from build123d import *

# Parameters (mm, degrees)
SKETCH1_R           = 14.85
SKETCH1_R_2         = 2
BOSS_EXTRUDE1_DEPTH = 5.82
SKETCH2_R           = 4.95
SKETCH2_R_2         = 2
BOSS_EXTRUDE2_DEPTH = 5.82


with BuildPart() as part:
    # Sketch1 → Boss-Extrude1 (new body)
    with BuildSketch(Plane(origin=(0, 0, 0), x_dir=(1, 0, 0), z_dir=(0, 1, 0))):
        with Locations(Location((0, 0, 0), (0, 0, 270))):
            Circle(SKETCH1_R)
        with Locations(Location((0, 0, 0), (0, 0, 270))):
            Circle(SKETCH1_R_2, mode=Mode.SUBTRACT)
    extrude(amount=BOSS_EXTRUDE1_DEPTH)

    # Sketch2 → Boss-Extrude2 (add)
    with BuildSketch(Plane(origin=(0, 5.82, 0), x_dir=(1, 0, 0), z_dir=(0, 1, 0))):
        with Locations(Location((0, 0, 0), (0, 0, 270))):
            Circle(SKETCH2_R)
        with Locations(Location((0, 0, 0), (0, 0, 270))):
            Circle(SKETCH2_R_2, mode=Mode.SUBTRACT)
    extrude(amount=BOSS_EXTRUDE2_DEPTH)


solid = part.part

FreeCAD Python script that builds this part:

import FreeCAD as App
import Part
import Sketcher
from FreeCAD import Vector
Q = App.Units.Quantity

doc = App.newDocument("Part")
body = doc.addObject("PartDesign::Body", "Body")

# Sketch on XZ plane
sketch1 = body.newObject("Sketcher::SketchObject", "Sketch")
sketch1.AttachmentSupport = (doc.getObject("XZ_Plane"), [""])
sketch1.MapMode = "FlatFace"
sketch1.addGeometry([
    Part.Circle(Vector(0, 0, 0), Vector(0, 0, 1), 14.85),
    Part.Circle(Vector(0, 0, 0), Vector(0, 0, 1), 2),
], False)
sketch1.addConstraint([
    Sketcher.Constraint("Coincident", 0, 3, -1, 1),
    Sketcher.Constraint("Coincident", 1, 3, -1, 1),
    Sketcher.Constraint("Diameter", 1, Q("4 mm")),
    Sketcher.Constraint("Diameter", 0, Q("29.7 mm")),
])
pad1 = body.newObject("PartDesign::Pad", "Pad")
pad1.Profile = sketch1
pad1.Length = 5.82
pad1.Reversed = True

# Sketch on XZ plane
sketch2 = body.newObject("Sketcher::SketchObject", "Sketch001")
sketch2.AttachmentSupport = (doc.getObject("XZ_Plane"), [""])
sketch2.MapMode = "FlatFace"
sketch2.AttachmentOffset = App.Placement(Vector(0, 0, -5.82), App.Rotation())
sketch2.addGeometry([
    Part.Circle(Vector(0, 0, 0), Vector(0, 0, 1), 4.95),
    Part.Circle(Vector(0, 0, 0), Vector(0, 0, 1), 2),
], False)
sketch2.addConstraint([
    Sketcher.Constraint("Coincident", 0, 3, -1, 1),
    Sketcher.Constraint("Coincident", 1, 3, -1, 1),
    Sketcher.Constraint("Diameter", 1, Q("4 mm")),
    Sketcher.Constraint("Diameter", 0, Q("9.9 mm")),
])
pad2 = body.newObject("PartDesign::Pad", "Pad001")
pad2.Profile = sketch2
pad2.Length = 5.82
pad2.Reversed = True

doc.recompute()
